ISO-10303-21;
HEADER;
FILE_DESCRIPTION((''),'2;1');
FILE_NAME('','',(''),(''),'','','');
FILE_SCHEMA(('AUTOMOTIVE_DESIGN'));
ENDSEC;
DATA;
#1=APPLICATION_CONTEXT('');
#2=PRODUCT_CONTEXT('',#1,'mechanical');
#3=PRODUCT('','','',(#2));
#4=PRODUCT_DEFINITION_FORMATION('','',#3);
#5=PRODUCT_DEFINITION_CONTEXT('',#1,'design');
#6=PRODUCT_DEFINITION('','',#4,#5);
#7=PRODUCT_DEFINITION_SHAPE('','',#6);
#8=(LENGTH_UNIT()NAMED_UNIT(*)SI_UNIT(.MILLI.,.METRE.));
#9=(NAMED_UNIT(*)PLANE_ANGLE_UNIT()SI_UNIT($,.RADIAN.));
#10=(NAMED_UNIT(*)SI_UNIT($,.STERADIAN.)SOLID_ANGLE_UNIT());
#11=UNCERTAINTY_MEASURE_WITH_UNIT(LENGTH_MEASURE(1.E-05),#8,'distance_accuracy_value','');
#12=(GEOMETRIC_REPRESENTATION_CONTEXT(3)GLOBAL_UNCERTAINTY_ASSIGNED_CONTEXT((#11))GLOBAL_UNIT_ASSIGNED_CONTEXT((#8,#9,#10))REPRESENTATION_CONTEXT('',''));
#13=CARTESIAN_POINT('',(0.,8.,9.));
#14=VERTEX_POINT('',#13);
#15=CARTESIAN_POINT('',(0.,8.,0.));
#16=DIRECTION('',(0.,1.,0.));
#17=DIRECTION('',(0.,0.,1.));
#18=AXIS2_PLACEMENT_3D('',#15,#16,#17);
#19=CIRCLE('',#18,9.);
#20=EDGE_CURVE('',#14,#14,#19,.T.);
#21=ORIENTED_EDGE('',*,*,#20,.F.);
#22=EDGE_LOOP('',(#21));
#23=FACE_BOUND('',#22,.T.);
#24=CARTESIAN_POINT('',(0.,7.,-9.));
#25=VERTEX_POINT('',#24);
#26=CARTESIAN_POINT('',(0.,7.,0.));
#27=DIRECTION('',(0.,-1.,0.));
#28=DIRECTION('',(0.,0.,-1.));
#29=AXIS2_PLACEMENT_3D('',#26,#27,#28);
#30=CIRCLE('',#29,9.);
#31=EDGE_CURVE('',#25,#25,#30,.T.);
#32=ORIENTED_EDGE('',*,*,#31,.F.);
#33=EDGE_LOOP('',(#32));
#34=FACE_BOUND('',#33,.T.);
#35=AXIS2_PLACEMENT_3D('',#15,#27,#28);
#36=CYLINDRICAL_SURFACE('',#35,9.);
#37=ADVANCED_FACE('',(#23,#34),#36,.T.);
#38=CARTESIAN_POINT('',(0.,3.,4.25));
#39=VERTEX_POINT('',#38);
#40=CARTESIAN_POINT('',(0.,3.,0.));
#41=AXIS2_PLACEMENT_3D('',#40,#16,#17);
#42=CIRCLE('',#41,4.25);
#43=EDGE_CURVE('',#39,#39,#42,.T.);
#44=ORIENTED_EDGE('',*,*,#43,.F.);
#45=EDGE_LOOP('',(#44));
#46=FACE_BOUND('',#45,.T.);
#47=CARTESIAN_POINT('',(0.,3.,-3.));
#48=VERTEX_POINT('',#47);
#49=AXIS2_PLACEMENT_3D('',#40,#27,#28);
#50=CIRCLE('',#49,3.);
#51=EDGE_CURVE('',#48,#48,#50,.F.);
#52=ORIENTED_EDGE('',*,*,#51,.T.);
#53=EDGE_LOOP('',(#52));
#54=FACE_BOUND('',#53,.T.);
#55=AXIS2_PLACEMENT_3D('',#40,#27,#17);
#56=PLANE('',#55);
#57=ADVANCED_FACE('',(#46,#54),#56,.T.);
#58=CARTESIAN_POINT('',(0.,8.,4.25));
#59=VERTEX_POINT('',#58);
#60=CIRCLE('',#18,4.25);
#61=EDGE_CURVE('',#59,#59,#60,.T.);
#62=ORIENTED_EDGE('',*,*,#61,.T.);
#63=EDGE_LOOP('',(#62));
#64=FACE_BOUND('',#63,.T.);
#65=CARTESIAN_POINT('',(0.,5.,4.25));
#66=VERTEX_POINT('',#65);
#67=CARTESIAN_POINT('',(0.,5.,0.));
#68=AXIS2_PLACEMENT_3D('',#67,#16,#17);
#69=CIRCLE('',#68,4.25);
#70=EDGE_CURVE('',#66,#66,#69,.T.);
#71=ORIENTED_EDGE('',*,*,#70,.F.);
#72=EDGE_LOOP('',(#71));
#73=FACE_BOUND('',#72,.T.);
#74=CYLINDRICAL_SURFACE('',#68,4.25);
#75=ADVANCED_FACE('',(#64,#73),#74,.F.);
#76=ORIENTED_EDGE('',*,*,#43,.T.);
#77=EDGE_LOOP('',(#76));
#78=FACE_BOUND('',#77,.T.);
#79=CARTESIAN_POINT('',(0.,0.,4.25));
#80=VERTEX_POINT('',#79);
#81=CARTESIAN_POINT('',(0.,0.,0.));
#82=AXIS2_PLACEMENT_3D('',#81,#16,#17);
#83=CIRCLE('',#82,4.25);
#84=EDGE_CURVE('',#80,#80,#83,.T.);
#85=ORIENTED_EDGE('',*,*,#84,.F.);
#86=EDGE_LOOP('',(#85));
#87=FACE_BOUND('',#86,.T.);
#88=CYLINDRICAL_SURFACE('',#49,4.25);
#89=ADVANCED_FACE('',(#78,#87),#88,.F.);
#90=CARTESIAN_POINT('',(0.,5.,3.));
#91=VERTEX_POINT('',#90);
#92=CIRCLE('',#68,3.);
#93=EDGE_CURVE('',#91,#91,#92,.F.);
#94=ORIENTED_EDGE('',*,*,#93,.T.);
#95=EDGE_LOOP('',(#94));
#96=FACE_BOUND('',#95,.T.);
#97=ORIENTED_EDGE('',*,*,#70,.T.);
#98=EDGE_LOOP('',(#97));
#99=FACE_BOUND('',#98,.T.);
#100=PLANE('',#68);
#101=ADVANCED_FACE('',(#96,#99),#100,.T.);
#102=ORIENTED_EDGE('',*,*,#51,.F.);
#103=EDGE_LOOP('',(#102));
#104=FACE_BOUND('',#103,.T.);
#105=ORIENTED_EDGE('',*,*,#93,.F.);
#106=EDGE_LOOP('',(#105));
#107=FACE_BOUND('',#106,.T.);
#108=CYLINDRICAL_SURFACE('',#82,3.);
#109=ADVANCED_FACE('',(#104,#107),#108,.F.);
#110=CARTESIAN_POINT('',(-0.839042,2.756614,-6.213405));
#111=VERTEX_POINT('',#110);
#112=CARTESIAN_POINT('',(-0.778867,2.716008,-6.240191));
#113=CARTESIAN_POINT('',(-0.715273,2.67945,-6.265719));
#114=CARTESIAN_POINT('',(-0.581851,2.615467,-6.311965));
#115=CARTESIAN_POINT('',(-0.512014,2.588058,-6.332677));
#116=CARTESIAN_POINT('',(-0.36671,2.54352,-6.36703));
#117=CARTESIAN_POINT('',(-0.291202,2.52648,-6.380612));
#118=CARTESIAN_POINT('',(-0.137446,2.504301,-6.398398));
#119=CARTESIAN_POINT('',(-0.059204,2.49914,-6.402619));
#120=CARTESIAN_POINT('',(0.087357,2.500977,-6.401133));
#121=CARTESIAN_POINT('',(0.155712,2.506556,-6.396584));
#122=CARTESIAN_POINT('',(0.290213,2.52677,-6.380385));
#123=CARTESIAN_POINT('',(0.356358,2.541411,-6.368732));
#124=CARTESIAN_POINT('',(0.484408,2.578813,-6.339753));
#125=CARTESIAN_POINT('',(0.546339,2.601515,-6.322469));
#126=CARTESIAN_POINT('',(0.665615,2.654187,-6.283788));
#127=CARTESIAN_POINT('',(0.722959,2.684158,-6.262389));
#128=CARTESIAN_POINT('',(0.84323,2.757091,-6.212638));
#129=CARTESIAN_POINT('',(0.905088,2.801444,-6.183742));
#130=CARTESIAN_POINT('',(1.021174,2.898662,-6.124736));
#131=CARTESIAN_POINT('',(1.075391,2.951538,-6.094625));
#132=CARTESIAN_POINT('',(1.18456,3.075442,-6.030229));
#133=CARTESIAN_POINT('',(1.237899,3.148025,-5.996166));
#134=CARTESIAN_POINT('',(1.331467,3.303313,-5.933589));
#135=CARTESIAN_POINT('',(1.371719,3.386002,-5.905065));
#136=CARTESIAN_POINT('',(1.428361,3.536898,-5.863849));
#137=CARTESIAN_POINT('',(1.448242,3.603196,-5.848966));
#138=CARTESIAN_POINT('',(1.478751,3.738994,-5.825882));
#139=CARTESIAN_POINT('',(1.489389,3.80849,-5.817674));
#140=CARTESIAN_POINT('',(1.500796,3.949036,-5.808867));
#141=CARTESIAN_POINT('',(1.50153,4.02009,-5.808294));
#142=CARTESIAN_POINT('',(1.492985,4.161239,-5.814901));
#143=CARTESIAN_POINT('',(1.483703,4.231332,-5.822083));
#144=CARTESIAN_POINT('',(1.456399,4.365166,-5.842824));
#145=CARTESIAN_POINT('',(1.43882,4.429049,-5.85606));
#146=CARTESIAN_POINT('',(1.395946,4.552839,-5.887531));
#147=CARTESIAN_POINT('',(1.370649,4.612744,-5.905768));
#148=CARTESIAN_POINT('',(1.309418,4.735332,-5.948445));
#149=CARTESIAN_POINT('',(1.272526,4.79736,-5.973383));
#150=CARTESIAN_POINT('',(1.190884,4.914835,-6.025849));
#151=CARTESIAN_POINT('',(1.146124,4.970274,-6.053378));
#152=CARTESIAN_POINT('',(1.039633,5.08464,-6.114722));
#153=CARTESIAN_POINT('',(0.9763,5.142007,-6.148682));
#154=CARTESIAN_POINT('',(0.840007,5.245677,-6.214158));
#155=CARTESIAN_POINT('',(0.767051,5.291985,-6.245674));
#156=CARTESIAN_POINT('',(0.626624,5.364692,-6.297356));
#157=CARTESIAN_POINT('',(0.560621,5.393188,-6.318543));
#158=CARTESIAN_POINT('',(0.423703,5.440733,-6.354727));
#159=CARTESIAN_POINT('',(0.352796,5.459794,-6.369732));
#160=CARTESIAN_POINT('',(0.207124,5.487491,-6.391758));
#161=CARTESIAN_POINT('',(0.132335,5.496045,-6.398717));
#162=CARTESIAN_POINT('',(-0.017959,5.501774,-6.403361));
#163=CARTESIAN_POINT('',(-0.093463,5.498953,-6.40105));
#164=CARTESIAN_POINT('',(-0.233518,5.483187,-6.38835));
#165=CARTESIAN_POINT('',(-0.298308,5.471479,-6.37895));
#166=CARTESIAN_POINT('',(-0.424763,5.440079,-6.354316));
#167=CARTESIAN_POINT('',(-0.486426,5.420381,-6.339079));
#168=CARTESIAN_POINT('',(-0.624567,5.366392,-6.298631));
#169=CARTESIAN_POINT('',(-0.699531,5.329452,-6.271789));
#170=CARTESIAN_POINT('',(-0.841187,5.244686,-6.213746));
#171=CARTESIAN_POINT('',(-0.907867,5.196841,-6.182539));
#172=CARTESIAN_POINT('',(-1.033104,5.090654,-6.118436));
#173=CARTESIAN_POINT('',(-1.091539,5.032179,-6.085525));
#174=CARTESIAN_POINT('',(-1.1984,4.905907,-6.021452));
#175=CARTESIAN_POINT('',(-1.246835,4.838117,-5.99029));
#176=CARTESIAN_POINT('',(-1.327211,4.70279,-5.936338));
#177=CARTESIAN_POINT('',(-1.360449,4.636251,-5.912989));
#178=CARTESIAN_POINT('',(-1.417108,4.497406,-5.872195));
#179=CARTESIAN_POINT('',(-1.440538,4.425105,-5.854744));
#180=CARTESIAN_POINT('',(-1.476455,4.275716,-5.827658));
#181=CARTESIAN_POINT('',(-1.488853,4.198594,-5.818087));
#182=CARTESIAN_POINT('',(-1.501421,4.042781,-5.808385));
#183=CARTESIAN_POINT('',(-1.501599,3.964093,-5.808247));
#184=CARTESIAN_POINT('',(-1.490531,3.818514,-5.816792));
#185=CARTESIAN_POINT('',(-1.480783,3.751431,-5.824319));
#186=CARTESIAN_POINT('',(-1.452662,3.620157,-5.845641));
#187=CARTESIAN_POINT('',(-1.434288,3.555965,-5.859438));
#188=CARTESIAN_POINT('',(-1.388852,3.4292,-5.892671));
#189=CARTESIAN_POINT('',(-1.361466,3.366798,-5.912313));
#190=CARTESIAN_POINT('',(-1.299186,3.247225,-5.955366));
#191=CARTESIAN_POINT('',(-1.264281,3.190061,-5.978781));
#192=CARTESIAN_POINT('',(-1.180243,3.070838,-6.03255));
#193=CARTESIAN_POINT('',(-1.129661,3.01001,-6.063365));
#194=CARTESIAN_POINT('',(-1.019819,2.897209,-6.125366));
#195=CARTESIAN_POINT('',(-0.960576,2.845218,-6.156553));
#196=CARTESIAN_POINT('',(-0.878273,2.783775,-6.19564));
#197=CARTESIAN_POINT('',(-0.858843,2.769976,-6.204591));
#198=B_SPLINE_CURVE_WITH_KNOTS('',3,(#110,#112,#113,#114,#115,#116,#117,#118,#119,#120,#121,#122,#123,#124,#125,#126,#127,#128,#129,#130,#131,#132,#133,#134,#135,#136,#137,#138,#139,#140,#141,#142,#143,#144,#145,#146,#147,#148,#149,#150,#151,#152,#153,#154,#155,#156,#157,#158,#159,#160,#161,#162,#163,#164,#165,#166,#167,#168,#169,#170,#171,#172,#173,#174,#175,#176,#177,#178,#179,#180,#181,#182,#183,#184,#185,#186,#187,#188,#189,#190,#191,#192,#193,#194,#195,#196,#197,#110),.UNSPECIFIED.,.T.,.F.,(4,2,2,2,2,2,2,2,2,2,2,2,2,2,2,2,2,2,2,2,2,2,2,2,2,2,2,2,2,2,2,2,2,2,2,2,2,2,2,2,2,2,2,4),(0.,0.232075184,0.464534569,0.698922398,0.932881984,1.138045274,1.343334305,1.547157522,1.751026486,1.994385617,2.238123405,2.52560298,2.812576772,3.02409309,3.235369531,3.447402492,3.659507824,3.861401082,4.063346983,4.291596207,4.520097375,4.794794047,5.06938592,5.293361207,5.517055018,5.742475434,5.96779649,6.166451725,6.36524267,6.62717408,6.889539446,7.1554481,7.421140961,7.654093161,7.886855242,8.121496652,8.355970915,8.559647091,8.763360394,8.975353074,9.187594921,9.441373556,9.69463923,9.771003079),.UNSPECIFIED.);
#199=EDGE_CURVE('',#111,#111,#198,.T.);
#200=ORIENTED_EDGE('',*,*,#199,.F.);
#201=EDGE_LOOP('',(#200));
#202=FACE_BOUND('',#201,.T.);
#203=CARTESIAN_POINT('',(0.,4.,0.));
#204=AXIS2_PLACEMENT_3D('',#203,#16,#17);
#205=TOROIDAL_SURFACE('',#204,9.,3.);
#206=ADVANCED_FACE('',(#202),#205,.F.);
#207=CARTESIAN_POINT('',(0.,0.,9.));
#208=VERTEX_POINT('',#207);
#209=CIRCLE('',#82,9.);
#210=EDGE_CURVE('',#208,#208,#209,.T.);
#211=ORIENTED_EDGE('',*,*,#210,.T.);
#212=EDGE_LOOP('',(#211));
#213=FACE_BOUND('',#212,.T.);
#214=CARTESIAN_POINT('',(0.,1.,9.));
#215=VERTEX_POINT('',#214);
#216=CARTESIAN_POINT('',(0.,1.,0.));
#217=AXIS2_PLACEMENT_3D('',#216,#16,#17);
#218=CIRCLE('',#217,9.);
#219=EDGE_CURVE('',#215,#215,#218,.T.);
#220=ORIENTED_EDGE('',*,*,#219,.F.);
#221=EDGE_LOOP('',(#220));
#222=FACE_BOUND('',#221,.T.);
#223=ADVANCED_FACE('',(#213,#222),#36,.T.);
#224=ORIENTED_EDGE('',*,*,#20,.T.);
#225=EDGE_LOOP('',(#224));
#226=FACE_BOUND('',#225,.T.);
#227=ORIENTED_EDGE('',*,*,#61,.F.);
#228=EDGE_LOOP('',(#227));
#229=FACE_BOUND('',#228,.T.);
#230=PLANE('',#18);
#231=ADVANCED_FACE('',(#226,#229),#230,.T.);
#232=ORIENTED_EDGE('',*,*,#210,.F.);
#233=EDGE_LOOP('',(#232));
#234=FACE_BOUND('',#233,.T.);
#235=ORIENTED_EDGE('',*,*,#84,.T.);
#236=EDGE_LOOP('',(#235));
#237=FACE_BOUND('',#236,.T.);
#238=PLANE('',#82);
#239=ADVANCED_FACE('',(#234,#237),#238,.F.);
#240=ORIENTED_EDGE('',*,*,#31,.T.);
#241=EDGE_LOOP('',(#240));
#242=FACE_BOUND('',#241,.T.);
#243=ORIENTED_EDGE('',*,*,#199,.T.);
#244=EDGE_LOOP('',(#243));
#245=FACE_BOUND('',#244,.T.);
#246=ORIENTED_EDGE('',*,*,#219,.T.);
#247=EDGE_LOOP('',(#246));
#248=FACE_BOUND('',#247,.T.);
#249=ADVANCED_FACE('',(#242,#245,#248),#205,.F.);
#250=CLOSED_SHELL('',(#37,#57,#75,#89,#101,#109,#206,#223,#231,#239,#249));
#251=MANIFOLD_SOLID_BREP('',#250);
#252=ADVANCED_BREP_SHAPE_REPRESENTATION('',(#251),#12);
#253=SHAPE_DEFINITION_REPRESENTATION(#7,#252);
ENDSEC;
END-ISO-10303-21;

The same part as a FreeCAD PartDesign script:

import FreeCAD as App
import Part
import Sketcher

doc = App.newDocument("Part")
body = doc.addObject("PartDesign::Body", "Body")

sketch1 = body.newObject("Sketcher::SketchObject", "Sketch")
sketch1.AttachmentSupport = (doc.getObject("XZ_Plane"), [""])
sketch1.MapMode = "FlatFace"
sketch1.addGeometry(Part.Circle(App.Vector(0, 0, 0), App.Vector(0, 0, 1), 9), False)
sketch1.addConstraint(Sketcher.Constraint("Coincident", 0, 3, -1, 1))
sketch1.addConstraint(Sketcher.Constraint("Diameter", 0, 18.0))
pad1 = body.newObject("PartDesign::Pad", "Pad")
pad1.Profile = sketch1
pad1.Length = 8
pad1.Reversed = True

sketch2 = body.newObject("Sketcher::SketchObject", "Sketch001")
sketch2.AttachmentSupport = (doc.getObject("YZ_Plane"), [""])
sketch2.MapMode = "FlatFace"
sketch2.addGeometry(Part.Circle(App.Vector(4, -9, 0), App.Vector(0, 0, 1), 3), False)
sketch2.addConstraint(Sketcher.Constraint("Diameter", 0, 6.0))
sketch2.addConstraint(Sketcher.Constraint("DistanceX", -1, 1, 0, 3, 4.0))
sketch2.addConstraint(Sketcher.Constraint("DistanceY", 0, 3, -1, 1, 9.0))
groove = body.newObject("PartDesign::Groove", "Groove")
groove.Profile = sketch2
groove.ReferenceAxis = (sketch2, ["H_Axis"])
groove.Angle = 360

sketch3 = body.newObject("Sketcher::SketchObject", "Sketch002")
sketch3.AttachmentSupport = (doc.getObject("XZ_Plane"), [""])
sketch3.MapMode = "FlatFace"
sketch3.AttachmentOffset = App.Placement(App.Vector(0, 0, -8), App.Rotation())
sketch3.addGeometry(Part.Circle(App.Vector(0, 0, 0), App.Vector(0, 0, 1), 3), False)
sketch3.addConstraint(Sketcher.Constraint("Coincident", 0, 3, -1, 1))
sketch3.addConstraint(Sketcher.Constraint("Diameter", 0, 6.0))
pocket1 = body.newObject("PartDesign::Pocket", "Pocket")
pocket1.Profile = sketch3
pocket1.Type = "ThroughAll"
pocket1.Reversed = True

sketch4 = body.newObject("Sketcher::SketchObject", "Sketch003")
sketch4.AttachmentSupport = (doc.getObject("XZ_Plane"), [""])
sketch4.MapMode = "FlatFace"
sketch4.AttachmentOffset = App.Placement(App.Vector(0, 0, -8), App.Rotation())
sketch4.addGeometry(Part.Circle(App.Vector(0, 0, 0), App.Vector(0, 0, 1), 4.2), False)
sketch4.addConstraint(Sketcher.Constraint("Coincident", 0, 3, -1, 1))
sketch4.addConstraint(Sketcher.Constraint("Diameter", 0, 8.5))
pocket2 = body.newObject("PartDesign::Pocket", "Pocket001")
pocket2.Profile = sketch4
pocket2.Length = 3
pocket2.Reversed = True
doc.recompute()

datumplane = body.newObject("PartDesign::Plane", "DatumPlane")
datumplane.AttachmentSupport = (doc.getObject("XZ_Plane"), [""])
datumplane.MapMode = "FlatFace"
datumplane.AttachmentOffset = App.Placement(App.Vector(0, 0, -4), App.Rotation())
mirrored = body.newObject("PartDesign::Mirrored", "Mirrored")
mirrored.Originals = [pocket2]
mirrored.MirrorPlane = (datumplane, [""])
body.Tip = mirrored

doc.recompute()
